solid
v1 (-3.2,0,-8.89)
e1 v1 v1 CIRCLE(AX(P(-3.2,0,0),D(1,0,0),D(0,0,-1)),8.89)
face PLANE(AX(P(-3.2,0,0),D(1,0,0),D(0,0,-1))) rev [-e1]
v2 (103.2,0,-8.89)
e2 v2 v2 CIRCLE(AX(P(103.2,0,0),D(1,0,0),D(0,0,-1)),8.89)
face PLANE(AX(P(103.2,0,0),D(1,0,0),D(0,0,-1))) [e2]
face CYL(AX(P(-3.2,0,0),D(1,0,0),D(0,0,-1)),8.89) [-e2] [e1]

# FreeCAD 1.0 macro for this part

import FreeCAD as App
import Part
import Sketcher

doc = App.newDocument("Part")
params = doc.addObject("Spreadsheet::Sheet", "Params")
for row, (alias, value) in enumerate([
    ("sketch1_diameter", "17.78 mm"),
    ("pad1_length", "103.2 mm"),
    ("pad1_length2", "3.2 mm"),
], start=1):
    params.set(f"A{row}", alias)
    params.set(f"B{row}", "=" + value)
    params.setAlias(f"B{row}", alias)

body = doc.addObject("PartDesign::Body", "Body")

sketch1 = doc.addObject("Sketcher::SketchObject", "Sketch")
body.addObject(sketch1)
sketch1.AttachmentSupport = (doc.YZ_Plane, [""])
sketch1.MapMode = "FlatFace"
sketch1.addGeometry(Part.Circle(App.Vector(0, 0, 0), App.Vector(0, 0, 1), 9), False)
sketch1.addConstraint([
    Sketcher.Constraint("Coincident", 0, 3, -1, 1),
    Sketcher.Constraint("Diameter", 0, 17.78),
])
sketch1.setExpression("Constraints[1]", "Params.sketch1_diameter")
pad1 = doc.addObject("PartDesign::Pad", "Pad")
body.addObject(pad1)
pad1.Profile = sketch1
pad1.Type = "TwoLengths"
pad1.setExpression("Length", "Params.pad1_length")
pad1.setExpression("Length2", "Params.pad1_length2")

doc.recompute()
